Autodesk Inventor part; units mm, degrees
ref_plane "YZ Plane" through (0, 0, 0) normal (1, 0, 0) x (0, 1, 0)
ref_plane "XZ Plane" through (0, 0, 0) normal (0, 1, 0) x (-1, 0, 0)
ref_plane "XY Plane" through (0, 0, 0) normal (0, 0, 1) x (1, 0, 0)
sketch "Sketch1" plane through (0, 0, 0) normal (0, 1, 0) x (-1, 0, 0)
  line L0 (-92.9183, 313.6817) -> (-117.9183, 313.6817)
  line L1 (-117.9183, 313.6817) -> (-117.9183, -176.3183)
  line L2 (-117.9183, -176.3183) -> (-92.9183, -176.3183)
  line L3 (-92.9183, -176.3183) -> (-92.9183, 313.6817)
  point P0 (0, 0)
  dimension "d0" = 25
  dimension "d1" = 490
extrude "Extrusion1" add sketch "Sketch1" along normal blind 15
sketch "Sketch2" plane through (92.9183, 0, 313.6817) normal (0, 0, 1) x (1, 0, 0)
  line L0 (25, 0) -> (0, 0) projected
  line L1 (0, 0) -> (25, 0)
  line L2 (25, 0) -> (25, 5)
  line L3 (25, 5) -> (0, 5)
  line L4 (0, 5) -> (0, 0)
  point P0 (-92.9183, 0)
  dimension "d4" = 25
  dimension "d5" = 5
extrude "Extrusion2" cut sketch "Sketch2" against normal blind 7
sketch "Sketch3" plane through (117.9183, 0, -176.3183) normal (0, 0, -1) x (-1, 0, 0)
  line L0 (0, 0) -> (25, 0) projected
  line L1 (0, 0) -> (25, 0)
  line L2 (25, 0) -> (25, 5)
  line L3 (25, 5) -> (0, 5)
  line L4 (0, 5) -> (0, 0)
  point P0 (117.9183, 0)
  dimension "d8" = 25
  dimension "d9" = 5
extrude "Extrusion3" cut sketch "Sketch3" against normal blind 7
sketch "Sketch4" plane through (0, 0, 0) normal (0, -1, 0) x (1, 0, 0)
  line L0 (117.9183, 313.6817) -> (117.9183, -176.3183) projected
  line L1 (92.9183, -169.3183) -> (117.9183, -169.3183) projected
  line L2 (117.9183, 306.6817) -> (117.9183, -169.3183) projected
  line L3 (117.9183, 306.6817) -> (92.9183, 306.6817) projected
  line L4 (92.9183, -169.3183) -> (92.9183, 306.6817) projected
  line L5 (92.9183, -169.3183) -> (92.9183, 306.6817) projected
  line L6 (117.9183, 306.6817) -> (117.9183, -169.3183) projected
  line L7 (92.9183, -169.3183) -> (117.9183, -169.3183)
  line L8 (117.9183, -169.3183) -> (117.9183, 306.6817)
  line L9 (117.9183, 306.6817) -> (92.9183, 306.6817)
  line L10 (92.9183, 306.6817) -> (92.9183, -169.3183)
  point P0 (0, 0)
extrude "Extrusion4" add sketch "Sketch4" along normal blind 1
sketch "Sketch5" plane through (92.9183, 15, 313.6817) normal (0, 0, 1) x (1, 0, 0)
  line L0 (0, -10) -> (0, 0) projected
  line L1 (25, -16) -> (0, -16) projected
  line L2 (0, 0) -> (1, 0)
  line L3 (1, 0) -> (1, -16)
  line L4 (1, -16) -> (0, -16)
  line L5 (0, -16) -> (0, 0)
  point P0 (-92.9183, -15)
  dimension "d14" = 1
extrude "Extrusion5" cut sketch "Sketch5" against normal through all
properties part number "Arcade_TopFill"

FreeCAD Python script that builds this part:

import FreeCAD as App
import Part
import Sketcher
from FreeCAD import Vector
Q = App.Units.Quantity


def add_polygon(sketch, points):
    """Adds a closed chain of lines whose ends are joined by coincident constraints."""
    first, n = sketch.GeometryCount, len(points)
    for a, b in zip(points, points[1:] + points[:1]):
        sketch.addGeometry(Part.LineSegment(App.Vector(*a, 0), App.Vector(*b, 0)), False)
    for i in range(n):
        sketch.addConstraint(Sketcher.Constraint("Coincident", first + i, 2, first + (i + 1) % n, 1))

doc = App.newDocument("Part")
body = doc.addObject("PartDesign::Body", "Body")

# Sketch on XZ plane
sketch1 = body.newObject("Sketcher::SketchObject", "Sketch")
sketch1.AttachmentSupport = (doc.getObject("XZ_Plane"), [""])
sketch1.MapMode = "FlatFace"
add_polygon(sketch1, [(92.9183, -176.3183), (92.9183, 313.6817), (117.9183, 313.6817), (117.9183, -176.3183)])  # lines 0-3
sketch1.addConstraint([
    Sketcher.Constraint("Vertical", 0),
    Sketcher.Constraint("Horizontal", 1),
    Sketcher.Constraint("Vertical", 2),
    Sketcher.Constraint("Horizontal", 3),
    Sketcher.Constraint("DistanceX", 1, 1, 1, 2, Q("25 mm")),
    Sketcher.Constraint("DistanceY", 0, 1, 0, 2, Q("490 mm")),
    Sketcher.Constraint("DistanceX", -1, 1, 0, 2, Q("92.9183 mm")),
    Sketcher.Constraint("DistanceY", -1, 1, 0, 2, Q("313.6817 mm")),
])
pad1 = body.newObject("PartDesign::Pad", "Pad")
pad1.Profile = sketch1
pad1.Length = 15
pad1.Reversed = True

# Sketch on XY plane
sketch2 = body.newObject("Sketcher::SketchObject", "Sketch001")
sketch2.AttachmentSupport = (doc.getObject("XY_Plane"), [""])
sketch2.MapMode = "FlatFace"
sketch2.AttachmentOffset = App.Placement(Vector(0, 0, 313.6817), App.Rotation())
add_polygon(sketch2, [(92.9183, 0), (117.9183, 0), (117.9183, 5), (92.9183, 5)])  # lines 0-3
sketch2.addConstraint([
    Sketcher.Constraint("Horizontal", 0),
    Sketcher.Constraint("Vertical", 1),
    Sketcher.Constraint("Horizontal", 2),
    Sketcher.Constraint("Vertical", 3),
    Sketcher.Constraint("PointOnObject", 0, 2, -1),
    Sketcher.Constraint("DistanceX", 0, 1, 0, 2, Q("25 mm")),
    Sketcher.Constraint("DistanceY", 1, 1, 1, 2, Q("5 mm")),
    Sketcher.Constraint("DistanceX", -1, 1, 0, 2, Q("117.9183 mm")),
])
pocket1 = body.newObject("PartDesign::Pocket", "Pocket")
pocket1.Profile = sketch2
pocket1.Length = 7

# Sketch on XY plane
sketch3 = body.newObject("Sketcher::SketchObject", "Sketch002")
sketch3.AttachmentSupport = (doc.getObject("XY_Plane"), [""])
sketch3.MapMode = "FlatFace"
sketch3.AttachmentOffset = App.Placement(Vector(0, 0, -176.3183), App.Rotation())
add_polygon(sketch3, [(117.9183, 5), (117.9183, 0), (92.9183, 0), (92.9183, 5)])  # lines 0-3
sketch3.addConstraint([
    Sketcher.Constraint("Vertical", 0),
    Sketcher.Constraint("Horizontal", 1),
    Sketcher.Constraint("Vertical", 2),
    Sketcher.Constraint("Horizontal", 3),
    Sketcher.Constraint("PointOnObject", 0, 2, -1),
    Sketcher.Constraint("DistanceX", 1, 2, 1, 1, Q("25 mm")),
    Sketcher.Constraint("DistanceY", 0, 2, 0, 1, Q("5 mm")),
    Sketcher.Constraint("DistanceX", -1, 1, 0, 2, Q("117.9183 mm")),
])
pocket2 = body.newObject("PartDesign::Pocket", "Pocket001")
pocket2.Profile = sketch3
pocket2.Length = 7
pocket2.Reversed = True

# Sketch on XZ plane
sketch4 = body.newObject("Sketcher::SketchObject", "Sketch003")
sketch4.AttachmentSupport = (doc.getObject("XZ_Plane"), [""])
sketch4.MapMode = "FlatFace"
add_polygon(sketch4, [(117.9183, -169.3183), (117.9183, 306.6817), (92.9183, 306.6817), (92.9183, -169.3183)])  # lines 0-3
sketch4.addConstraint([
    Sketcher.Constraint("Vertical", 0),
    Sketcher.Constraint("Horizontal", 1),
    Sketcher.Constraint("Vertical", 2),
    Sketcher.Constraint("Horizontal", 3),
    Sketcher.Constraint("DistanceX", 1, 2, 1, 1, Q("25 mm")),
    Sketcher.Constraint("DistanceY", 0, 1, 0, 2, Q("476 mm")),
    Sketcher.Constraint("DistanceX", -1, 1, 0, 2, Q("117.9183 mm")),
    Sketcher.Constraint("DistanceY", -1, 1, 0, 2, Q("306.6817 mm")),
])
pad2 = body.newObject("PartDesign::Pad", "Pad001")
pad2.Profile = sketch4
pad2.Length = 1

# Sketch on XY plane
sketch5 = body.newObject("Sketcher::SketchObject", "Sketch004")
sketch5.AttachmentSupport = (doc.getObject("XY_Plane"), [""])
sketch5.MapMode = "FlatFace"
sketch5.AttachmentOffset = App.Placement(Vector(0, 0, 313.6817), App.Rotation())
add_polygon(sketch5, [(92.9183, 15), (92.9183, -1), (93.9183, -1), (93.9183, 15)])  # lines 0-3
sketch5.addConstraint([
    Sketcher.Constraint("Vertical", 0),
    Sketcher.Constraint("Horizontal", 1),
    Sketcher.Constraint("Vertical", 2),
    Sketcher.Constraint("Horizontal", 3),
    Sketcher.Constraint("DistanceX", 1, 1, 1, 2, Q("1 mm")),
    Sketcher.Constraint("DistanceY", 0, 2, -1, 1, Q("1 mm")),
    Sketcher.Constraint("DistanceY", 0, 2, 0, 1, Q("16 mm")),
    Sketcher.Constraint("DistanceX", -1, 1, 0, 2, Q("92.9183 mm")),
])
pocket3 = body.newObject("PartDesign::Pocket", "Pocket002")
pocket3.Profile = sketch5
pocket3.Type = "ThroughAll"

doc.recompute()
